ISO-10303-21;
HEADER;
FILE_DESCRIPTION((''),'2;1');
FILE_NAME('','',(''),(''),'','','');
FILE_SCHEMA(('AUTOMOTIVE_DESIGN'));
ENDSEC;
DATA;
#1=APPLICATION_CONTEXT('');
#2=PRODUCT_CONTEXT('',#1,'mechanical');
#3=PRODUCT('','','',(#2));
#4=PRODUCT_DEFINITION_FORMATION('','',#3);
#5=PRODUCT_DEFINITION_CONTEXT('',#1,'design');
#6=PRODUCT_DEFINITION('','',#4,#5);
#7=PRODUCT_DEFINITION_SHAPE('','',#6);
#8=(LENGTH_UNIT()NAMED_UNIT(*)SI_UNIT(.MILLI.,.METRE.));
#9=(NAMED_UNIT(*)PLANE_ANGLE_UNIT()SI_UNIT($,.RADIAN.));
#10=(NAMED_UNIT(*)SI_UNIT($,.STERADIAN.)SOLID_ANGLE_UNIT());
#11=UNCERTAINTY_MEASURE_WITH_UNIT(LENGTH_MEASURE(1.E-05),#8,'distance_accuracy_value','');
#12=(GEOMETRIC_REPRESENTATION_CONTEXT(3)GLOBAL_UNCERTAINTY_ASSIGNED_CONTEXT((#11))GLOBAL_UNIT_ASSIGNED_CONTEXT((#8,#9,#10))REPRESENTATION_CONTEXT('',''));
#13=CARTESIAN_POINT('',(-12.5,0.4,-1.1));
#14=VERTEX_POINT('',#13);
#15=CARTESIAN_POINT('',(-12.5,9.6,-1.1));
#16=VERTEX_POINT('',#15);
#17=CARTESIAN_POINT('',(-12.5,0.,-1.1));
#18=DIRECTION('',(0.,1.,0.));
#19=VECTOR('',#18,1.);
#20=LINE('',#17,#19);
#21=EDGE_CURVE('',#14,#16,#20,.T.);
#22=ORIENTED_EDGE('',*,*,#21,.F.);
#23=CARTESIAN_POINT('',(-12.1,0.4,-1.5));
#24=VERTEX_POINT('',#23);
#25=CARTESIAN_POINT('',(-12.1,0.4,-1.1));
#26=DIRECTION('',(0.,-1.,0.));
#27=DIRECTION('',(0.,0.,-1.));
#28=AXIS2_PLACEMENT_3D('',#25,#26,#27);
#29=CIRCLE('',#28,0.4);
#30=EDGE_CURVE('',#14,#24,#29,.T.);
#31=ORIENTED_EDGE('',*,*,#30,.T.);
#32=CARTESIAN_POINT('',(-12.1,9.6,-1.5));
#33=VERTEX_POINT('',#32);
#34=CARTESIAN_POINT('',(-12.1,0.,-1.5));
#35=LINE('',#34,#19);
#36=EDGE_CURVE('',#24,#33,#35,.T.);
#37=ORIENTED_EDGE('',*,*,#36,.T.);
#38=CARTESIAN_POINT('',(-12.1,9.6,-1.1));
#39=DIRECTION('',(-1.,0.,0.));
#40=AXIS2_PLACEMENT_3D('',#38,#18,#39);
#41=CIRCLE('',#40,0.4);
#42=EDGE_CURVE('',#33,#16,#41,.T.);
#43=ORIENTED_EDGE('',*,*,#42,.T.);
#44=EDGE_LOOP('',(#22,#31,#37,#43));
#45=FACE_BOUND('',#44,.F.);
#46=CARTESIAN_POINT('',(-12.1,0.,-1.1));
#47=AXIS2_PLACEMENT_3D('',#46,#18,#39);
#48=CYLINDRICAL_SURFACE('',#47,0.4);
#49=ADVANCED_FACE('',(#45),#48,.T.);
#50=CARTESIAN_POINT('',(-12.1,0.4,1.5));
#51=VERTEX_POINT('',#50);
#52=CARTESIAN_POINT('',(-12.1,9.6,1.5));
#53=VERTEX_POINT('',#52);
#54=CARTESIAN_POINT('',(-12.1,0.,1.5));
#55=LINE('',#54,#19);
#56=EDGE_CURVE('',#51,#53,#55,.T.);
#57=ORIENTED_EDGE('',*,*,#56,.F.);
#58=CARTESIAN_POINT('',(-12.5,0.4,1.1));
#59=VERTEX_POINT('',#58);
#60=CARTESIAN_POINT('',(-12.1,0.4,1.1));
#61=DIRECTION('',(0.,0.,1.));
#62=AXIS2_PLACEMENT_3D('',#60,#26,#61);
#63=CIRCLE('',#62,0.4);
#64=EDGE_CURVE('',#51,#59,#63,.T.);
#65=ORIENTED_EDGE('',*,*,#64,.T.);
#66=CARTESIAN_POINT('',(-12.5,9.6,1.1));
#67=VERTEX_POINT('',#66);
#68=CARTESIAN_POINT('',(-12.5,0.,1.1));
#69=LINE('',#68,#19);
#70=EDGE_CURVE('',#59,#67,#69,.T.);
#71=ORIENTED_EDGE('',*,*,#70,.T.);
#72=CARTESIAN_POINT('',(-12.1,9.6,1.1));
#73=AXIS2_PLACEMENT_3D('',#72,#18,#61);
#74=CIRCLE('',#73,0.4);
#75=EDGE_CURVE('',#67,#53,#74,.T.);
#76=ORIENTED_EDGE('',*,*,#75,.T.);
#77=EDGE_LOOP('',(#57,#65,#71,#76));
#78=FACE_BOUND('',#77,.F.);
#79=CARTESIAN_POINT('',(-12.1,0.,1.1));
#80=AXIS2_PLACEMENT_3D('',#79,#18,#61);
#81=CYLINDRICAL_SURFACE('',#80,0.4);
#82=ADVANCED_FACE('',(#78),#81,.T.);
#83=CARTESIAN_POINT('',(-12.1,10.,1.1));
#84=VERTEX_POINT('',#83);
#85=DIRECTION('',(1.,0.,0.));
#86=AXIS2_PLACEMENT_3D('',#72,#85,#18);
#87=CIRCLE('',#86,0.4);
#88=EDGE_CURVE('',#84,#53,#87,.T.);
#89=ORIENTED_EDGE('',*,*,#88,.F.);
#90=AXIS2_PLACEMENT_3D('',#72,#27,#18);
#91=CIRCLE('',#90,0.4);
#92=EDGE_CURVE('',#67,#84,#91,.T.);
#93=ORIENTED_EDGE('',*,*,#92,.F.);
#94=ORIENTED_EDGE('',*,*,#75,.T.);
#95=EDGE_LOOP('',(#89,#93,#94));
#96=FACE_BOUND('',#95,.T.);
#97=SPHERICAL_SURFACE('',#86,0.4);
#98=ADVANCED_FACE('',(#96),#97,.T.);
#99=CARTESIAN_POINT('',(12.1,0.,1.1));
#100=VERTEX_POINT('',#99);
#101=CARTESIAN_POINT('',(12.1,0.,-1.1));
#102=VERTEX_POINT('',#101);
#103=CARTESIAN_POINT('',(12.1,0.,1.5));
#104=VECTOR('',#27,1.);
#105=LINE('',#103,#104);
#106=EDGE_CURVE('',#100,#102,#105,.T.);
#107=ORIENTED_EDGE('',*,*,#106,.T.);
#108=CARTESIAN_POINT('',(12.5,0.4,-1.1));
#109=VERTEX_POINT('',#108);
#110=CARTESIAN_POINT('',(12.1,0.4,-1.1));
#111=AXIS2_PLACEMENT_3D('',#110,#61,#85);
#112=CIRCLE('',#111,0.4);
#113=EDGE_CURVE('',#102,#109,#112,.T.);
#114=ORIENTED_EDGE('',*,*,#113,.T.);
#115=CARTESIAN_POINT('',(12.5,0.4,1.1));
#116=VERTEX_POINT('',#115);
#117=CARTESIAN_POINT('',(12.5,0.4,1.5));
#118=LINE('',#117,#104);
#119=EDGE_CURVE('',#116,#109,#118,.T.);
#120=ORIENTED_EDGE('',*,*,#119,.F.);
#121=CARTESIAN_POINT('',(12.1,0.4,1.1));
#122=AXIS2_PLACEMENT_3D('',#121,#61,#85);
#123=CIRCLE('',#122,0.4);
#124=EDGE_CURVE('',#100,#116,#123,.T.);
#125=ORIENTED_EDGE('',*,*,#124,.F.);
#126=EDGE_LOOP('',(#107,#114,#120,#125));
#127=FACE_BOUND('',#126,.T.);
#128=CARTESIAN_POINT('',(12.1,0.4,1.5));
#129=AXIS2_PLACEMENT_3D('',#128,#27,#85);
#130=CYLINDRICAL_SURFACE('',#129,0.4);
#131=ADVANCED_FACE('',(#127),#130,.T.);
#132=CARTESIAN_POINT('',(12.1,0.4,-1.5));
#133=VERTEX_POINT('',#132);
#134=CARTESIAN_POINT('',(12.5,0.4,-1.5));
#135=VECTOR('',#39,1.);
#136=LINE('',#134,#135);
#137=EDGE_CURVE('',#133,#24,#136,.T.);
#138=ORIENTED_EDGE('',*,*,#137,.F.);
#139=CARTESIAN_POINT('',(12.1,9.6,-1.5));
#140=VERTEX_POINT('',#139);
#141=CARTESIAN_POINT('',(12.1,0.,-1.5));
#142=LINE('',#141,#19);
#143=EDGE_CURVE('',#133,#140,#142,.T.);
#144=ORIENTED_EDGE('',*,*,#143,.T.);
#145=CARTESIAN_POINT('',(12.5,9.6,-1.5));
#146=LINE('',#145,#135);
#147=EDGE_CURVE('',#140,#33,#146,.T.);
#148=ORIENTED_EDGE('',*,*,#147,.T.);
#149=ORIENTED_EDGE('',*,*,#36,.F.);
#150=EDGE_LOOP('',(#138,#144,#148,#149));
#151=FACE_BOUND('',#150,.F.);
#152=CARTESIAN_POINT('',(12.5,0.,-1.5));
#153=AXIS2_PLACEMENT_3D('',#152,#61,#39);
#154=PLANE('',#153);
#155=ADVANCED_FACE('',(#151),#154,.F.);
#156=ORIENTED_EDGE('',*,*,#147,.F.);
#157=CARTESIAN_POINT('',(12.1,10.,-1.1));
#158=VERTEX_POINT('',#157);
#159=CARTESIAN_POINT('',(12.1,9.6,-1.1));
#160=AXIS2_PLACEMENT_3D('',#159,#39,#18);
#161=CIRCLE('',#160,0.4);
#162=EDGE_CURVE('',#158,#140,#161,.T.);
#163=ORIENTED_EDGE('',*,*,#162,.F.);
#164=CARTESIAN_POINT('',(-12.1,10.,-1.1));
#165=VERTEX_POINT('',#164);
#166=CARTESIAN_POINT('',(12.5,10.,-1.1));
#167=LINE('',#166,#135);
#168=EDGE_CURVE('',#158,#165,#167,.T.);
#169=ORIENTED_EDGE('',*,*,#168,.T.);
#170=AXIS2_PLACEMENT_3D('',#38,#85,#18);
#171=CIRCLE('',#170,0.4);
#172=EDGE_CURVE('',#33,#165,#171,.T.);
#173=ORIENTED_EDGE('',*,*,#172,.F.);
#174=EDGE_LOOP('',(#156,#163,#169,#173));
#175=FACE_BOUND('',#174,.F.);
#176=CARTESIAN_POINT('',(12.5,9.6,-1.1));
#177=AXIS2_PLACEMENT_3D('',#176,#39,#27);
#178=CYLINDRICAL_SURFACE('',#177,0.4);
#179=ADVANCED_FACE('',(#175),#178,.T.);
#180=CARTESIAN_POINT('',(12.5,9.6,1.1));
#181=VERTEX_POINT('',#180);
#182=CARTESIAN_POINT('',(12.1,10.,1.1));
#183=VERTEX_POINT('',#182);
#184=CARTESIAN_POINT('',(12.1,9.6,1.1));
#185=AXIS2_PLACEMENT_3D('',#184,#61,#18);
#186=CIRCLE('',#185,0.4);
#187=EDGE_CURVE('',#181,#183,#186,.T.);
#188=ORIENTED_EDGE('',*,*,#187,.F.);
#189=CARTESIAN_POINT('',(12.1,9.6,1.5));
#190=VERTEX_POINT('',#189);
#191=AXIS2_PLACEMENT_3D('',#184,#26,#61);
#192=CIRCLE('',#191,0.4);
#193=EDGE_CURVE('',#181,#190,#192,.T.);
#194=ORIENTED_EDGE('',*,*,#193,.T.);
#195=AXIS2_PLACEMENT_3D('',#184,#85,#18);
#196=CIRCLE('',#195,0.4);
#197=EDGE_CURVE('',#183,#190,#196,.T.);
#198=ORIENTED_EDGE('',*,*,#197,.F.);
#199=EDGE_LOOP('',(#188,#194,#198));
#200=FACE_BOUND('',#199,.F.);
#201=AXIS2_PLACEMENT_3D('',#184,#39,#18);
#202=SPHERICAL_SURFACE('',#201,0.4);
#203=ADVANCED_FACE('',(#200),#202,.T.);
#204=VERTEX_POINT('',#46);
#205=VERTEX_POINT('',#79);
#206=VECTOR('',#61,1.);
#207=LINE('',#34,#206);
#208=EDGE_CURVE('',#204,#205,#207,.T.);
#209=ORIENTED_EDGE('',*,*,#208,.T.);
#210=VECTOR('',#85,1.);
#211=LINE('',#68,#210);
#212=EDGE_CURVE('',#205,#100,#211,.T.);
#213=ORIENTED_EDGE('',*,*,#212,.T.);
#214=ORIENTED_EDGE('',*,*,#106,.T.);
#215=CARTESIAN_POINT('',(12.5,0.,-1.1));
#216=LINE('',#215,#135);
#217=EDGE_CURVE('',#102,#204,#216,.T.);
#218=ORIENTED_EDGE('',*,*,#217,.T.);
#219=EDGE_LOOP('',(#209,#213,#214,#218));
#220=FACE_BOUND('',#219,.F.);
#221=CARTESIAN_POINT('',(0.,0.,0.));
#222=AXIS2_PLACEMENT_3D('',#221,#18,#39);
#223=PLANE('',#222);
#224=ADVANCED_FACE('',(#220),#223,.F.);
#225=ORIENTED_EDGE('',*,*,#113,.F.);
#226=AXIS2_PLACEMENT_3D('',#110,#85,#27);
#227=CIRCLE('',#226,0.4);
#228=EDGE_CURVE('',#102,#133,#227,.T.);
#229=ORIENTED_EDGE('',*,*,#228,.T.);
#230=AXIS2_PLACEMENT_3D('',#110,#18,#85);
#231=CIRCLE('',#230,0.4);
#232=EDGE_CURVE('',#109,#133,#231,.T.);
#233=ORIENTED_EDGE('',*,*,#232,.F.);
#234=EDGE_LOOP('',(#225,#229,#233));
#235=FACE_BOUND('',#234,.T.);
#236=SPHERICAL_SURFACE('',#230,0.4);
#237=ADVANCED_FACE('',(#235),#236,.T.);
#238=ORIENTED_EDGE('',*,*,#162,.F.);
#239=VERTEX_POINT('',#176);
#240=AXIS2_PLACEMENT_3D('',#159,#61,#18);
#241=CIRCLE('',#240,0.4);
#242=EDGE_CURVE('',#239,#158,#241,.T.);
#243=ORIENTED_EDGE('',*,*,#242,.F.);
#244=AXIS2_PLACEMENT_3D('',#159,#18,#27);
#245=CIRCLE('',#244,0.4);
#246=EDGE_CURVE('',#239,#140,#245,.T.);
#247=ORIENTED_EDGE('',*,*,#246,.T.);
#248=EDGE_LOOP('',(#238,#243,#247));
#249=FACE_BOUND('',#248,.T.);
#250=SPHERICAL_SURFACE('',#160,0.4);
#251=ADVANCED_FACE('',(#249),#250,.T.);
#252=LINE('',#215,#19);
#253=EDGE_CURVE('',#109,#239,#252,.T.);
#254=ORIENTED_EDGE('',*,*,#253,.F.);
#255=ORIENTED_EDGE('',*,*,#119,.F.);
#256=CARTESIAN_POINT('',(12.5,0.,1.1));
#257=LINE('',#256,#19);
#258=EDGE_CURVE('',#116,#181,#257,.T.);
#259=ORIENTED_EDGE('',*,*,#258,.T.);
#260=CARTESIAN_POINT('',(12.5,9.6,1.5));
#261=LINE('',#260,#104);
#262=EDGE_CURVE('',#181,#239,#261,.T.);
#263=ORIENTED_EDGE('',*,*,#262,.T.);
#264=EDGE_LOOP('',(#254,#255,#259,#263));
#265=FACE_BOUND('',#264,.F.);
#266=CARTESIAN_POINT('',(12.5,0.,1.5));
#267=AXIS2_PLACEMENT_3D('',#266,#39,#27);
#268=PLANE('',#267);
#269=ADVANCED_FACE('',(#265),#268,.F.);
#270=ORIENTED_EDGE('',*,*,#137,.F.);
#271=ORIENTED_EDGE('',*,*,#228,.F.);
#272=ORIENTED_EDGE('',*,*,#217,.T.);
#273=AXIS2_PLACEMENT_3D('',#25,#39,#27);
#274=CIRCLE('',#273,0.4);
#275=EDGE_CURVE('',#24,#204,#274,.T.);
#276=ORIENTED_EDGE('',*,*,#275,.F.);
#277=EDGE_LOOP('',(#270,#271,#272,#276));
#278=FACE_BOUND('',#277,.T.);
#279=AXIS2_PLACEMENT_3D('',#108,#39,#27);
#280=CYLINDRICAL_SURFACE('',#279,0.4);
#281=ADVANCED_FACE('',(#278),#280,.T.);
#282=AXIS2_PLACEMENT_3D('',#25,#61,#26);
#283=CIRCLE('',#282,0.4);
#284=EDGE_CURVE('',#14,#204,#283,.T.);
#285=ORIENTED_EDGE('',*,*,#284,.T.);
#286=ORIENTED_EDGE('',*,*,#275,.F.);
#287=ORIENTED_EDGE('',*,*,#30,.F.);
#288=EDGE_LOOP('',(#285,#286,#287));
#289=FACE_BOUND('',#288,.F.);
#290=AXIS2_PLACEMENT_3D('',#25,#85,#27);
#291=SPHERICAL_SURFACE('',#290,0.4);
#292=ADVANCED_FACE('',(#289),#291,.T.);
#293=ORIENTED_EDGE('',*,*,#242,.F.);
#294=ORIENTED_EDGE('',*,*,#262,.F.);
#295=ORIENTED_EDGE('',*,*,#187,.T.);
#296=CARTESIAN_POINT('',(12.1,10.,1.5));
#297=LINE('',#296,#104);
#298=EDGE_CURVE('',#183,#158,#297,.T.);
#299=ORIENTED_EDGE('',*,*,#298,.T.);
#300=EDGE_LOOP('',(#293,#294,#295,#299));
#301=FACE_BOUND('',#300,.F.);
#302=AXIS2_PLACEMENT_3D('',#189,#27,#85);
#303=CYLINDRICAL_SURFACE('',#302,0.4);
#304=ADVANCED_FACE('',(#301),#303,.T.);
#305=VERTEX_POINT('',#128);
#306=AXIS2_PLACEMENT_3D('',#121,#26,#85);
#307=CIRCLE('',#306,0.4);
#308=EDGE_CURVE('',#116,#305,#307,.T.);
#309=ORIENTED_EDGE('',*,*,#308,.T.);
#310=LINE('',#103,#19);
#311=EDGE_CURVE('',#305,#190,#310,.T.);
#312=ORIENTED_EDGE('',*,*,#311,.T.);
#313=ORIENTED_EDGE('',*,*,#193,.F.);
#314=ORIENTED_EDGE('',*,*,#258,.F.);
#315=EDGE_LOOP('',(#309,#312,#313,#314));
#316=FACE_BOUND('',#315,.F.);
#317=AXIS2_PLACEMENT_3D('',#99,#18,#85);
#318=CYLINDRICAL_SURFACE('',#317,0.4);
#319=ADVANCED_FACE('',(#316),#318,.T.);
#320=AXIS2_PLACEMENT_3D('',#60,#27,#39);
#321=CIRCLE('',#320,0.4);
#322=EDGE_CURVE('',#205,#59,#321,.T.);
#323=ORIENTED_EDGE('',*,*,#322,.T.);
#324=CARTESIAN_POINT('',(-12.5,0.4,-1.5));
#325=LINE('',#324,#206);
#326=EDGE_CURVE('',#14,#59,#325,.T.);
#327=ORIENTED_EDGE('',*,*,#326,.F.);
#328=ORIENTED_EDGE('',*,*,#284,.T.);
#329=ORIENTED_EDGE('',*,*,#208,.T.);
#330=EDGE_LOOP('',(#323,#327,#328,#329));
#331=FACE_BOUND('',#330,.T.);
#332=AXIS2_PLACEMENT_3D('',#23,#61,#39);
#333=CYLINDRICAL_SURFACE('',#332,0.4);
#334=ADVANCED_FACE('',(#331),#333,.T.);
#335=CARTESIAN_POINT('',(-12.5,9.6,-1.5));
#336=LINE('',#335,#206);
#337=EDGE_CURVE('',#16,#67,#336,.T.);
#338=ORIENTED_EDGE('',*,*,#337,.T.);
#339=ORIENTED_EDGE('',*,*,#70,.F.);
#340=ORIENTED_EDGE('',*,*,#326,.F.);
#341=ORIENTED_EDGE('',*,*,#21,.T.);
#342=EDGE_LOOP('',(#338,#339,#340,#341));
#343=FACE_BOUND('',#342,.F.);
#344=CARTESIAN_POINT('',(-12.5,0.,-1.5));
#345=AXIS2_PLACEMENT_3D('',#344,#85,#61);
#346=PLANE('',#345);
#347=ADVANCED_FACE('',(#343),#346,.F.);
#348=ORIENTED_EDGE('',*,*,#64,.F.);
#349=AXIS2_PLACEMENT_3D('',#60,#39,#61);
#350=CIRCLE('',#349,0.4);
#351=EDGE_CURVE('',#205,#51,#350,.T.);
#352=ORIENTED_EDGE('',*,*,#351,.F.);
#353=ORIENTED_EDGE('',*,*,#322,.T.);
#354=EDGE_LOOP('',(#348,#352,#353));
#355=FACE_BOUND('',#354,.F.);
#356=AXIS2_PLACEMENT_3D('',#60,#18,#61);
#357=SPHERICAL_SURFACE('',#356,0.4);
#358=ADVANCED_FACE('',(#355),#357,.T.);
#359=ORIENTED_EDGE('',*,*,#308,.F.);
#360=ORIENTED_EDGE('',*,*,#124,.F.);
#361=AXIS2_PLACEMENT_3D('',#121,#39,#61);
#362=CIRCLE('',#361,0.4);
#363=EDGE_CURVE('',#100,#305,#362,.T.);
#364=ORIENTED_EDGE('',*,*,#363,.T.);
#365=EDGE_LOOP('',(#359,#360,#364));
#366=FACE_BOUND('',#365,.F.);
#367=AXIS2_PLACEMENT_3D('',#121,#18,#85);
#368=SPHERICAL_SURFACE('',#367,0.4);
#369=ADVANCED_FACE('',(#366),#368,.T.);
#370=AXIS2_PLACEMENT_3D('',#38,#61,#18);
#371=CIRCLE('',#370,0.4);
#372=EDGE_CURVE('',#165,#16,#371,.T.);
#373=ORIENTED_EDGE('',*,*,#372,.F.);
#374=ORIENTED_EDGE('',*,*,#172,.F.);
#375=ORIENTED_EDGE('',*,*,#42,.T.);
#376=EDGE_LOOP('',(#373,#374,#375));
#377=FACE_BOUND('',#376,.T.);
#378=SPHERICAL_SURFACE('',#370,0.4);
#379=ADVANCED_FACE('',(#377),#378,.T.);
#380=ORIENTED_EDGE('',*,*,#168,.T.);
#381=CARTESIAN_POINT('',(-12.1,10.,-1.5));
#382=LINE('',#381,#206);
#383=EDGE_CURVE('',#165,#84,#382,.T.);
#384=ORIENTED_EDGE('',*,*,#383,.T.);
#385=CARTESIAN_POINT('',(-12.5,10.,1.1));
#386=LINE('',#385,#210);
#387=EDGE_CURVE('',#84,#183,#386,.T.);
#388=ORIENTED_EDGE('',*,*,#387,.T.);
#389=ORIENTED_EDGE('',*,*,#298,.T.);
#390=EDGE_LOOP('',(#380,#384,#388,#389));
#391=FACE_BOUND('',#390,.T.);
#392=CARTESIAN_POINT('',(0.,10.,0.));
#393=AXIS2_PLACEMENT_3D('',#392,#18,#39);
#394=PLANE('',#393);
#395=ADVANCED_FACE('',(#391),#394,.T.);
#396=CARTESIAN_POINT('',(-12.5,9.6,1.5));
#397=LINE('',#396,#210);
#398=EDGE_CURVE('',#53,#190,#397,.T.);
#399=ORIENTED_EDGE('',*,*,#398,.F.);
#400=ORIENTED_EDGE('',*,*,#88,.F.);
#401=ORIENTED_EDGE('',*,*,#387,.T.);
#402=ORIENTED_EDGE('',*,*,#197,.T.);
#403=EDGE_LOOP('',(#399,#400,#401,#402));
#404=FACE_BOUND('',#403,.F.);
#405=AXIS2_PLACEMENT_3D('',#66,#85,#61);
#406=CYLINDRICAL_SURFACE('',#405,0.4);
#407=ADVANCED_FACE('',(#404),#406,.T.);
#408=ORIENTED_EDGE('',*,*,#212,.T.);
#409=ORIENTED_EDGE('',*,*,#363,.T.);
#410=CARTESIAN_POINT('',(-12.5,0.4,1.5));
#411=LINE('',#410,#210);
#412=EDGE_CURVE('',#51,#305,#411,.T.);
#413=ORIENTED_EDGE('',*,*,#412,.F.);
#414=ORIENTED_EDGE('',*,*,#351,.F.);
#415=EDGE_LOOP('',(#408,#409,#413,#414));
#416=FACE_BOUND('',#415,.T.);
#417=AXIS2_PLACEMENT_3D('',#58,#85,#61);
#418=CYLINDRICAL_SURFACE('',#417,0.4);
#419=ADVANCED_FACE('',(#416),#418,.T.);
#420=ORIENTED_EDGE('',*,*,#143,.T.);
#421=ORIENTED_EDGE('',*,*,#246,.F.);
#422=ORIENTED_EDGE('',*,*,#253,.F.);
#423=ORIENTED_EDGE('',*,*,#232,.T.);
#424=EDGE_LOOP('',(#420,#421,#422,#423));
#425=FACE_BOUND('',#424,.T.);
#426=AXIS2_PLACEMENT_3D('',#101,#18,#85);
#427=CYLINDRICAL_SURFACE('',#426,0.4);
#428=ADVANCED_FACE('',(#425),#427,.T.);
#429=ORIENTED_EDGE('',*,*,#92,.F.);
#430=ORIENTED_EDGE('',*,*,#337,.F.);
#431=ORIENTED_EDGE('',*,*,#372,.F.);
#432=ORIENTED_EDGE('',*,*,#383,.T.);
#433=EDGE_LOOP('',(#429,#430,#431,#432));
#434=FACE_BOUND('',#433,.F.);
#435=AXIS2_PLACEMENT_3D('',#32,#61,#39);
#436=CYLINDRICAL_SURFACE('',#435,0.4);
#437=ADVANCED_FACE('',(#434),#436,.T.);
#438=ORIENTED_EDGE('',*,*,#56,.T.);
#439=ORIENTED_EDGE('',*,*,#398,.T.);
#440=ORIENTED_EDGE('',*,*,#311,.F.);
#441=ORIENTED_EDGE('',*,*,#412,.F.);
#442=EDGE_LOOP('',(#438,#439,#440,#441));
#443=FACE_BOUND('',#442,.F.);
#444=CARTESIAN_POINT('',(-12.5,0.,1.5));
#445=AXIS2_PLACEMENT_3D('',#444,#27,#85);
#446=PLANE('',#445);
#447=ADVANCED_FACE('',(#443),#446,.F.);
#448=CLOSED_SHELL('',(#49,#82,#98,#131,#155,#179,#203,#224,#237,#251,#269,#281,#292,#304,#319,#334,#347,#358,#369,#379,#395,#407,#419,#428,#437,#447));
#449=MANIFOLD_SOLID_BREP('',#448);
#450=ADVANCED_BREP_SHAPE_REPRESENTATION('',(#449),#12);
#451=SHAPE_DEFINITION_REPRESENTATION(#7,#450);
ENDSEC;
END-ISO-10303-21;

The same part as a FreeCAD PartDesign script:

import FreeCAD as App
import Part
import Sketcher
Q = App.Units.Quantity

doc = App.newDocument("Part")
params = doc.addObject("Spreadsheet::Sheet", "Params")
for row, (alias, value) in enumerate([
    ("sketch1_width", "25 mm"),
    ("sketch1_height", "3 mm"),
    ("pad1_length", "10 mm"),
    ("fillet_radius", "0.4 mm"),
], start=1):
    params.set(f"A{row}", alias)
    params.set(f"B{row}", "=" + value)
    params.setAlias(f"B{row}", alias)

body = doc.addObject("PartDesign::Body", "Body")

# Sketch on XZ plane
sketch1 = doc.addObject("Sketcher::SketchObject", "Sketch")
body.addObject(sketch1)
sketch1.AttachmentSupport = (doc.XZ_Plane, [""])
sketch1.MapMode = "FlatFace"
sketch1.addGeometry([
    Part.LineSegment(App.Vector(12.5, 1.5, 0), App.Vector(12.5, -1.5, 0)),
    Part.LineSegment(App.Vector(12.5, -1.5, 0), App.Vector(-12.5, -1.5, 0)),
    Part.LineSegment(App.Vector(-12.5, -1.5, 0), App.Vector(-12.5, 1.5, 0)),
    Part.LineSegment(App.Vector(-12.5, 1.5, 0), App.Vector(12.5, 1.5, 0)),
], False)
sketch1.addConstraint([
    Sketcher.Constraint("Coincident", 0, 2, 1, 1),
    Sketcher.Constraint("Coincident", 1, 2, 2, 1),
    Sketcher.Constraint("Coincident", 2, 2, 3, 1),
    Sketcher.Constraint("Coincident", 3, 2, 0, 1),
    Sketcher.Constraint("Vertical", 0),
    Sketcher.Constraint("Horizontal", 1),
    Sketcher.Constraint("Vertical", 2),
    Sketcher.Constraint("Horizontal", 3),
    Sketcher.Constraint("Symmetric", 0, 2, 2, 2, -1, 1),
    Sketcher.Constraint("DistanceX", 1, 2, 1, 1, Q("25 mm")),
    Sketcher.Constraint("DistanceY", 0, 2, 0, 1, Q("3 mm")),
])
sketch1.setExpression("Constraints[9]", "Params.sketch1_width")
sketch1.setExpression("Constraints[10]", "Params.sketch1_height")
pad1 = doc.addObject("PartDesign::Pad", "Pad")
body.addObject(pad1)
pad1.Profile = sketch1
pad1.setExpression("Length", "Params.pad1_length")
pad1.Reversed = True
doc.recompute()

fillet = doc.addObject("PartDesign::Fillet", "Fillet")
body.addObject(fillet)
fillet.Base = (pad1, ["Edge1"])
fillet.UseAllEdges = True
fillet.setExpression("Radius", "Params.fillet_radius")

doc.recompute()
